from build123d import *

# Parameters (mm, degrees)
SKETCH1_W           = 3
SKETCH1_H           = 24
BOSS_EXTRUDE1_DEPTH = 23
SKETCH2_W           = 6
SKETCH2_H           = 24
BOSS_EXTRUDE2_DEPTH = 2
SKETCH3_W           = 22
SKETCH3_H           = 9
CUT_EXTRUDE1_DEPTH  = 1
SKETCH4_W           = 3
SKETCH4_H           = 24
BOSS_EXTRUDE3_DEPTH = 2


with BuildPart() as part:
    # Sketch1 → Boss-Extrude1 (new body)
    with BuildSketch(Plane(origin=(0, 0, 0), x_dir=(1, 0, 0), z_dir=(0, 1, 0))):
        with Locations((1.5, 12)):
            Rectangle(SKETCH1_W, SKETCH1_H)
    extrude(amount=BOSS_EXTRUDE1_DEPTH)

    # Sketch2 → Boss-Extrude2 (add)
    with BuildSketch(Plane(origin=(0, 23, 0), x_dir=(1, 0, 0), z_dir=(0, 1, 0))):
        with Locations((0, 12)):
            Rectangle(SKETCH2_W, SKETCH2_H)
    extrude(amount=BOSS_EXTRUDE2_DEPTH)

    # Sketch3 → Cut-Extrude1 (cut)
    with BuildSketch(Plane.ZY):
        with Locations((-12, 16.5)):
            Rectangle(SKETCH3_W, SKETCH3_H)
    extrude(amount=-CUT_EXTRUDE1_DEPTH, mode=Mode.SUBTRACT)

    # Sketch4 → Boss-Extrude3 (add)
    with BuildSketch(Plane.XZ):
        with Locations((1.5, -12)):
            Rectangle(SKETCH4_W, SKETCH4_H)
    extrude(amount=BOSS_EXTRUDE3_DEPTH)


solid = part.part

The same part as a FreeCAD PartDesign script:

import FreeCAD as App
import Part
import Sketcher

doc = App.newDocument("Part")
body = doc.addObject("PartDesign::Body", "Body")

sketch1 = body.newObject("Sketcher::SketchObject", "Sketch")
sketch1.AttachmentSupport = (doc.getObject("XZ_Plane"), [""])
sketch1.MapMode = "FlatFace"
sketch1.addGeometry([
    Part.LineSegment(App.Vector(0, -24, 0), App.Vector(0, 0, 0)),
    Part.LineSegment(App.Vector(0, 0, 0), App.Vector(3, 0, 0)),
    Part.LineSegment(App.Vector(3, 0, 0), App.Vector(3, -24, 0)),
    Part.LineSegment(App.Vector(3, -24, 0), App.Vector(0, -24, 0)),
], False)
sketch1.addConstraint([
    Sketcher.Constraint("Coincident", 0, 2, 1, 1),
    Sketcher.Constraint("Coincident", 1, 2, 2, 1),
    Sketcher.Constraint("Coincident", 2, 2, 3, 1),
    Sketcher.Constraint("Coincident", 3, 2, 0, 1),
    Sketcher.Constraint("Vertical", 0),
    Sketcher.Constraint("Horizontal", 1),
    Sketcher.Constraint("Vertical", 2),
    Sketcher.Constraint("Horizontal", 3),
    Sketcher.Constraint("Coincident", 0, 2, -1, 1),
    Sketcher.Constraint("DistanceX", 1, 1, 1, 2, 3.0),
    Sketcher.Constraint("DistanceY", 0, 1, 0, 2, 24.0),
])
pad1 = body.newObject("PartDesign::Pad", "Pad")
pad1.Profile = sketch1
pad1.Length = 23
pad1.Reversed = True

sketch2 = body.newObject("Sketcher::SketchObject", "Sketch001")
sketch2.AttachmentSupport = (doc.getObject("XZ_Plane"), [""])
sketch2.MapMode = "FlatFace"
sketch2.AttachmentOffset = App.Placement(App.Vector(0, 0, -23), App.Rotation())
sketch2.addGeometry([
    Part.LineSegment(App.Vector(-3, -24, 0), App.Vector(-3, 0, 0)),
    Part.LineSegment(App.Vector(-3, 0, 0), App.Vector(3, 0, 0)),
    Part.LineSegment(App.Vector(3, 0, 0), App.Vector(3, -24, 0)),
    Part.LineSegment(App.Vector(3, -24, 0), App.Vector(-3, -24, 0)),
], False)
sketch2.addConstraint([
    Sketcher.Constraint("Coincident", 0, 2, 1, 1),
    Sketcher.Constraint("Coincident", 1, 2, 2, 1),
    Sketcher.Constraint("Coincident", 2, 2, 3, 1),
    Sketcher.Constraint("Coincident", 3, 2, 0, 1),
    Sketcher.Constraint("Vertical", 0),
    Sketcher.Constraint("Horizontal", 1),
    Sketcher.Constraint("Vertical", 2),
    Sketcher.Constraint("Horizontal", 3),
    Sketcher.Constraint("Symmetric", 0, 2, 1, 2, -1, 1),
    Sketcher.Constraint("DistanceX", 1, 1, 1, 2, 6.0),
    Sketcher.Constraint("DistanceY", 0, 1, 0, 2, 24.0),
])
pad2 = body.newObject("PartDesign::Pad", "Pad001")
pad2.Profile = sketch2
pad2.Length = 2
pad2.Reversed = True

sketch3 = body.newObject("Sketcher::SketchObject", "Sketch002")
sketch3.AttachmentSupport = (doc.getObject("YZ_Plane"), [""])
sketch3.MapMode = "FlatFace"
sketch3.addGeometry([
    Part.LineSegment(App.Vector(21, -23, 0), App.Vector(12, -23, 0)),
    Part.LineSegment(App.Vector(12, -23, 0), App.Vector(12, -1, 0)),
    Part.LineSegment(App.Vector(12, -1, 0), App.Vector(21, -1, 0)),
    Part.LineSegment(App.Vector(21, -1, 0), App.Vector(21, -23, 0)),
], False)
sketch3.addConstraint([
    Sketcher.Constraint("Coincident", 0, 2, 1, 1),
    Sketcher.Constraint("Coincident", 1, 2, 2, 1),
    Sketcher.Constraint("Coincident", 2, 2, 3, 1),
    Sketcher.Constraint("Coincident", 3, 2, 0, 1),
    Sketcher.Constraint("Horizontal", 0),
    Sketcher.Constraint("Vertical", 1),
    Sketcher.Constraint("Horizontal", 2),
    Sketcher.Constraint("Vertical", 3),
    Sketcher.Constraint("DistanceX", 0, 2, 0, 1, 9.0),
    Sketcher.Constraint("DistanceY", 1, 1, 1, 2, 22.0),
    Sketcher.Constraint("DistanceX", -1, 1, 0, 2, 12.0),
    Sketcher.Constraint("DistanceY", 0, 2, -1, 1, 23.0),
])
pocket1 = body.newObject("PartDesign::Pocket", "Pocket")
pocket1.Profile = sketch3
pocket1.Length = 1
pocket1.Reversed = True

sketch4 = body.newObject("Sketcher::SketchObject", "Sketch003")
sketch4.AttachmentSupport = (doc.getObject("XZ_Plane"), [""])
sketch4.MapMode = "FlatFace"
sketch4.addGeometry([
    Part.LineSegment(App.Vector(0, 0, 0), App.Vector(0, -24, 0)),
    Part.LineSegment(App.Vector(0, -24, 0), App.Vector(3, -24, 0)),
    Part.LineSegment(App.Vector(3, -24, 0), App.Vector(3, 0, 0)),
    Part.LineSegment(App.Vector(3, 0, 0), App.Vector(0, 0, 0)),
], False)
sketch4.addConstraint([
    Sketcher.Constraint("Coincident", 0, 2, 1, 1),
    Sketcher.Constraint("Coincident", 1, 2, 2, 1),
    Sketcher.Constraint("Coincident", 2, 2, 3, 1),
    Sketcher.Constraint("Coincident", 3, 2, 0, 1),
    Sketcher.Constraint("Vertical", 0),
    Sketcher.Constraint("Horizontal", 1),
    Sketcher.Constraint("Vertical", 2),
    Sketcher.Constraint("Horizontal", 3),
    Sketcher.Constraint("Coincident", 3, 2, -1, 1),
    Sketcher.Constraint("DistanceX", 1, 1, 1, 2, 3.0),
    Sketcher.Constraint("DistanceY", 0, 2, 0, 1, 24.0),
])
pad3 = body.newObject("PartDesign::Pad", "Pad002")
pad3.Profile = sketch4
pad3.Length = 2

doc.recompute()
